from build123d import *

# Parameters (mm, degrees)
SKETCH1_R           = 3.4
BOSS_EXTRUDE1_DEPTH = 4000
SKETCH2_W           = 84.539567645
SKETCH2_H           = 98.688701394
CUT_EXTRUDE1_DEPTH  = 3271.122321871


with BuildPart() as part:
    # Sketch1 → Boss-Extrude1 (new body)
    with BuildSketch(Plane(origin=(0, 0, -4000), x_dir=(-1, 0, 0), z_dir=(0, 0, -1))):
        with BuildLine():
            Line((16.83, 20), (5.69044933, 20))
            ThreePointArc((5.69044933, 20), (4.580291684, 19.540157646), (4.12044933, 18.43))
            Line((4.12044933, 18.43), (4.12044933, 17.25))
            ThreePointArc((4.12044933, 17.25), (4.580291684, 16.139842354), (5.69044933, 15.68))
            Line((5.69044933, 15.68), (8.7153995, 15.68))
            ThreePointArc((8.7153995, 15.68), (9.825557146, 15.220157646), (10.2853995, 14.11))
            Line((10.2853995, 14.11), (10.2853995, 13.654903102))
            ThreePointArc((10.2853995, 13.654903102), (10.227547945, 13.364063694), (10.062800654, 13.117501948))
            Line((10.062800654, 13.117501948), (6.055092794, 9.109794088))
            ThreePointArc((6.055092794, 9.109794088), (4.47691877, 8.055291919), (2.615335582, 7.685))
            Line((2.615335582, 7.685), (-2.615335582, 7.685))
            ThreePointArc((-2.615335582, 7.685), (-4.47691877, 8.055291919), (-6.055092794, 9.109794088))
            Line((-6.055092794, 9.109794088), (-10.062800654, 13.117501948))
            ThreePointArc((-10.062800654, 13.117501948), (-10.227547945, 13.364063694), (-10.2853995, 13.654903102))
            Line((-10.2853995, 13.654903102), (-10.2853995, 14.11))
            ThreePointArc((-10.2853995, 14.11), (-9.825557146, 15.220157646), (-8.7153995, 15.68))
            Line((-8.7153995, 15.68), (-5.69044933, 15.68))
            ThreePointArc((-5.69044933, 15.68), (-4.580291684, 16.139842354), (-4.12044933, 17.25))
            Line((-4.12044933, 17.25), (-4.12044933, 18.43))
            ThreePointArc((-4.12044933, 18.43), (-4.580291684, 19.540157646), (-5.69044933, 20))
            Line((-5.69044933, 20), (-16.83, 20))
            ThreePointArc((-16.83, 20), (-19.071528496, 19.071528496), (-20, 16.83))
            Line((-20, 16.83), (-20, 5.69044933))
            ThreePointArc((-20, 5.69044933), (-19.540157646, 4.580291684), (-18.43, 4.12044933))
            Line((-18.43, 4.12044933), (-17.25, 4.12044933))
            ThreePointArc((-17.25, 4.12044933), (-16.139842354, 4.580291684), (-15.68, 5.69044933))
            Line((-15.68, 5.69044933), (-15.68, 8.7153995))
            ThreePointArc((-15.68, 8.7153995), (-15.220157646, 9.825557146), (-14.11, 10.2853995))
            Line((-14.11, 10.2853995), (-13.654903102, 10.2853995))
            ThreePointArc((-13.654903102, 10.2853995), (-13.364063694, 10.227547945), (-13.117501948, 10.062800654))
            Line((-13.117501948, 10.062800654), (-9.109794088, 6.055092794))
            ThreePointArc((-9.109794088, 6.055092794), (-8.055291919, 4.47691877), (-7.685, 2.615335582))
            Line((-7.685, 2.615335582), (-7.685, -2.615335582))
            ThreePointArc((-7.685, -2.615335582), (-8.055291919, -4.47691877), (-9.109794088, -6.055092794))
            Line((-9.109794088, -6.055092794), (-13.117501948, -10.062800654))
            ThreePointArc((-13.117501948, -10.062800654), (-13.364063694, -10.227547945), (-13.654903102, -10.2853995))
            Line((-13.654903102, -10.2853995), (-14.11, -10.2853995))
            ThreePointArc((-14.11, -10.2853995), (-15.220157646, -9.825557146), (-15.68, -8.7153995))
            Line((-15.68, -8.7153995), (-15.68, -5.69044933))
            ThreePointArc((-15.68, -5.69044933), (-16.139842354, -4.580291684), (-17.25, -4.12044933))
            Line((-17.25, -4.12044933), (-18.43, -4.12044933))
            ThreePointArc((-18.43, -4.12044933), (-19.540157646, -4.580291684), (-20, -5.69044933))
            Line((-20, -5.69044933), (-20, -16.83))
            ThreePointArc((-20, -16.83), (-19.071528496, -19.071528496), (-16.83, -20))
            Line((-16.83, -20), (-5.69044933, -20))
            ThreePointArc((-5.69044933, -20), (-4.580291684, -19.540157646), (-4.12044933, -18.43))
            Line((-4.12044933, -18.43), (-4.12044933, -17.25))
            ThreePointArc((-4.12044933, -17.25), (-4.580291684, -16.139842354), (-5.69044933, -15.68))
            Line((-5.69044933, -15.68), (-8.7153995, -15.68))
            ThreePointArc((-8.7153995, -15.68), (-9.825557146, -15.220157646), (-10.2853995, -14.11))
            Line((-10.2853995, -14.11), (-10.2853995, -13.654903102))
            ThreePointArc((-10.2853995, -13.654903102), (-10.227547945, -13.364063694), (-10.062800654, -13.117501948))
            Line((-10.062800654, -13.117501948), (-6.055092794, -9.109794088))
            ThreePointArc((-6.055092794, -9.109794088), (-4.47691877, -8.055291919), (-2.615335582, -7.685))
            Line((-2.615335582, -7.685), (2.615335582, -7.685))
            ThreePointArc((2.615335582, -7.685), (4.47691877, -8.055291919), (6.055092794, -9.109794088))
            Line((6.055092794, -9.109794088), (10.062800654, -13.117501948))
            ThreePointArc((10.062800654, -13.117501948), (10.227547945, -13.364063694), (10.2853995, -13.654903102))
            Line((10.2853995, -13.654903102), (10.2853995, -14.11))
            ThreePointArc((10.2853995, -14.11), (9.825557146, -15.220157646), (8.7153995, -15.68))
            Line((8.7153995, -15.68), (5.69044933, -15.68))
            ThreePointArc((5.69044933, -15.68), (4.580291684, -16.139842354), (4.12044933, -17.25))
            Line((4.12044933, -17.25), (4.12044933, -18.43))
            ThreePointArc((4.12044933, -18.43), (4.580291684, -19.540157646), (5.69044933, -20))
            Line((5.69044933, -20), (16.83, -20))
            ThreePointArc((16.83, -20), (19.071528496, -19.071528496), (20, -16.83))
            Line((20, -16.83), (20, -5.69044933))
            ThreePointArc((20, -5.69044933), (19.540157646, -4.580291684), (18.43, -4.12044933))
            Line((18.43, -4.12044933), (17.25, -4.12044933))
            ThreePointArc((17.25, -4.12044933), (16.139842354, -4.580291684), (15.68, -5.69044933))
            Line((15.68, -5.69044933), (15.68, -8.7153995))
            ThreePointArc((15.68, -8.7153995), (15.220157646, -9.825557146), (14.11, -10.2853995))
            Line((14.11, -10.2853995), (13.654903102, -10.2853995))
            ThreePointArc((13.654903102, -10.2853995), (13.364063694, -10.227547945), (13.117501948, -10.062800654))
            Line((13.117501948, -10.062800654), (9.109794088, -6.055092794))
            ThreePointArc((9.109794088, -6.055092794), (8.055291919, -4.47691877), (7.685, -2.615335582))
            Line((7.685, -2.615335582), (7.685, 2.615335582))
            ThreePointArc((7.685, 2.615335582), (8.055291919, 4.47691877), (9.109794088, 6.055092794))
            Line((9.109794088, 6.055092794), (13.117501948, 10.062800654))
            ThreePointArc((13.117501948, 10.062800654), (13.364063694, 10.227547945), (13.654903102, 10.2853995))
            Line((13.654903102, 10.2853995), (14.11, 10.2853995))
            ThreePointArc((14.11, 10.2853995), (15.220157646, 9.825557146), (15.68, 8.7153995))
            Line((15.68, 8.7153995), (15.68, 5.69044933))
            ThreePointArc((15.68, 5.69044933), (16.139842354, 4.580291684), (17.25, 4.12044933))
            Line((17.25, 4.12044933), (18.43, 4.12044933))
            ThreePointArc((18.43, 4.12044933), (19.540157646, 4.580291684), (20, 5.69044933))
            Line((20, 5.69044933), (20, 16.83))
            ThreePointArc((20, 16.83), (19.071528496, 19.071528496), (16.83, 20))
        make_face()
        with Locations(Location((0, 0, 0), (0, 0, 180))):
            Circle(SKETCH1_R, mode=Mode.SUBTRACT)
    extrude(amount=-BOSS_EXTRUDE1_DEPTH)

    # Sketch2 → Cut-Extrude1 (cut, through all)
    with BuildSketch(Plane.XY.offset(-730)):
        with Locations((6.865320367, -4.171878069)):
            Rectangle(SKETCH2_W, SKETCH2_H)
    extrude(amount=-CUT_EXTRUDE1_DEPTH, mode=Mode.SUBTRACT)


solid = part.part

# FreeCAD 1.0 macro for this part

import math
import FreeCAD as App
import Part
import Sketcher
from FreeCAD import Vector
Q = App.Units.Quantity

doc = App.newDocument("Part")
body = doc.addObject("PartDesign::Body", "Body")

# Sketch on XY plane
sketch1 = body.newObject("Sketcher::SketchObject", "Sketch")
sketch1.AttachmentSupport = (doc.getObject("XY_Plane"), [""])
sketch1.MapMode = "FlatFace"
sketch1.AttachmentOffset = App.Placement(Vector(0, 0, -4000), App.Rotation())
sketch1.addGeometry([
    Part.LineSegment(Vector(-16.83, 20, 0), Vector(-5.69, 20, 0)),  # 0
    Part.ArcOfCircle(Part.Circle(Vector(-5.69, 18.43, 0), Vector(0, 0, 1), 1.57), math.radians(0), math.radians(90)),  # 1
    Part.LineSegment(Vector(-4.12, 18.43, 0), Vector(-4.12, 17.25, 0)),  # 2
    Part.ArcOfCircle(Part.Circle(Vector(-5.69, 17.25, 0), Vector(0, 0, 1), 1.57), math.radians(-90), math.radians(0)),  # 3
    Part.LineSegment(Vector(-5.69, 15.68, 0), Vector(-8.72, 15.68, 0)),  # 4
    Part.ArcOfCircle(Part.Circle(Vector(-8.72, 14.11, 0), Vector(0, 0, 1), 1.57), math.radians(90), math.radians(180)),  # 5
    Part.LineSegment(Vector(-10.29, 14.11, 0), Vector(-10.29, 13.65, 0)),  # 6
    Part.ArcOfCircle(Part.Circle(Vector(-9.53, 13.65, 0), Vector(0, 0, 1), 0.76), math.radians(180), math.radians(225)),  # 7
    Part.LineSegment(Vector(-10.06, 13.12, 0), Vector(-6.06, 9.11, 0)),  # 8
    Part.ArcOfCircle(Part.Circle(Vector(-2.62, 12.55, 0), Vector(0, 0, 1), 4.86), math.radians(-135), math.radians(-90)),  # 9
    Part.LineSegment(Vector(-2.62, 7.68, 0), Vector(2.62, 7.68, 0)),  # 10
    Part.ArcOfCircle(Part.Circle(Vector(2.62, 12.55, 0), Vector(0, 0, 1), 4.86), math.radians(-90), math.radians(-45)),  # 11
    Part.LineSegment(Vector(6.06, 9.11, 0), Vector(10.06, 13.12, 0)),  # 12
    Part.ArcOfCircle(Part.Circle(Vector(9.53, 13.65, 0), Vector(0, 0, 1), 0.76), math.radians(-45), math.radians(0)),  # 13
    Part.LineSegment(Vector(10.29, 13.65, 0), Vector(10.29, 14.11, 0)),  # 14
    Part.ArcOfCircle(Part.Circle(Vector(8.72, 14.11, 0), Vector(0, 0, 1), 1.57), math.radians(0), math.radians(90)),  # 15
    Part.LineSegment(Vector(8.72, 15.68, 0), Vector(5.69, 15.68, 0)),  # 16
    Part.ArcOfCircle(Part.Circle(Vector(5.69, 17.25, 0), Vector(0, 0, 1), 1.57), math.radians(-180), math.radians(-90)),  # 17
    Part.LineSegment(Vector(4.12, 17.25, 0), Vector(4.12, 18.43, 0)),  # 18
    Part.ArcOfCircle(Part.Circle(Vector(5.69, 18.43, 0), Vector(0, 0, 1), 1.57), math.radians(90), math.radians(180)),  # 19
    Part.LineSegment(Vector(5.69, 20, 0), Vector(16.83, 20, 0)),  # 20
    Part.ArcOfCircle(Part.Circle(Vector(16.83, 16.83, 0), Vector(0, 0, 1), 3.17), math.radians(0), math.radians(90)),  # 21
    Part.LineSegment(Vector(20, 16.83, 0), Vector(20, 5.69, 0)),  # 22
    Part.ArcOfCircle(Part.Circle(Vector(18.43, 5.69, 0), Vector(0, 0, 1), 1.57), math.radians(-90), math.radians(0)),  # 23
    Part.LineSegment(Vector(18.43, 4.12, 0), Vector(17.25, 4.12, 0)),  # 24
    Part.ArcOfCircle(Part.Circle(Vector(17.25, 5.69, 0), Vector(0, 0, 1), 1.57), math.radians(-180), math.radians(-90)),  # 25
    Part.LineSegment(Vector(15.68, 5.69, 0), Vector(15.68, 8.72, 0)),  # 26
    Part.ArcOfCircle(Part.Circle(Vector(14.11, 8.72, 0), Vector(0, 0, 1), 1.57), math.radians(0), math.radians(90)),  # 27
    Part.LineSegment(Vector(14.11, 10.29, 0), Vector(13.65, 10.29, 0)),  # 28
    Part.ArcOfCircle(Part.Circle(Vector(13.65, 9.53, 0), Vector(0, 0, 1), 0.76), math.radians(90), math.radians(135)),  # 29
    Part.LineSegment(Vector(13.12, 10.06, 0), Vector(9.11, 6.06, 0)),  # 30
    Part.ArcOfCircle(Part.Circle(Vector(12.55, 2.62, 0), Vector(0, 0, 1), 4.86), math.radians(135), math.radians(180)),  # 31
    Part.LineSegment(Vector(7.68, 2.62, 0), Vector(7.68, -2.62, 0)),  # 32
    Part.ArcOfCircle(Part.Circle(Vector(12.55, -2.62, 0), Vector(0, 0, 1), 4.86), math.radians(-180), math.radians(-135)),  # 33
    Part.LineSegment(Vector(9.11, -6.06, 0), Vector(13.12, -10.06, 0)),  # 34
    Part.ArcOfCircle(Part.Circle(Vector(13.65, -9.53, 0), Vector(0, 0, 1), 0.76), math.radians(-135), math.radians(-90)),  # 35
    Part.LineSegment(Vector(13.65, -10.29, 0), Vector(14.11, -10.29, 0)),  # 36
    Part.ArcOfCircle(Part.Circle(Vector(14.11, -8.72, 0), Vector(0, 0, 1), 1.57), math.radians(-90), math.radians(0)),  # 37
    Part.LineSegment(Vector(15.68, -8.72, 0), Vector(15.68, -5.69, 0)),  # 38
    Part.ArcOfCircle(Part.Circle(Vector(17.25, -5.69, 0), Vector(0, 0, 1), 1.57), math.radians(90), math.radians(180)),  # 39
    Part.LineSegment(Vector(17.25, -4.12, 0), Vector(18.43, -4.12, 0)),  # 40
    Part.ArcOfCircle(Part.Circle(Vector(18.43, -5.69, 0), Vector(0, 0, 1), 1.57), math.radians(0), math.radians(90)),  # 41
    Part.LineSegment(Vector(20, -5.69, 0), Vector(20, -16.83, 0)),  # 42
    Part.ArcOfCircle(Part.Circle(Vector(16.83, -16.83, 0), Vector(0, 0, 1), 3.17), math.radians(-90), math.radians(0)),  # 43
    Part.LineSegment(Vector(16.83, -20, 0), Vector(5.69, -20, 0)),  # 44
    Part.ArcOfCircle(Part.Circle(Vector(5.69, -18.43, 0), Vector(0, 0, 1), 1.57), math.radians(-180), math.radians(-90)),  # 45
    Part.LineSegment(Vector(4.12, -18.43, 0), Vector(4.12, -17.25, 0)),  # 46
    Part.ArcOfCircle(Part.Circle(Vector(5.69, -17.25, 0), Vector(0, 0, 1), 1.57), math.radians(90), math.radians(180)),  # 47
    Part.LineSegment(Vector(5.69, -15.68, 0), Vector(8.72, -15.68, 0)),  # 48
    Part.ArcOfCircle(Part.Circle(Vector(8.72, -14.11, 0), Vector(0, 0, 1), 1.57), math.radians(-90), math.radians(0)),  # 49
    Part.LineSegment(Vector(10.29, -14.11, 0), Vector(10.29, -13.65, 0)),  # 50
    Part.ArcOfCircle(Part.Circle(Vector(9.53, -13.65, 0), Vector(0, 0, 1), 0.76), math.radians(0), math.radians(45)),  # 51
    Part.LineSegment(Vector(10.06, -13.12, 0), Vector(6.06, -9.11, 0)),  # 52
    Part.ArcOfCircle(Part.Circle(Vector(2.62, -12.55, 0), Vector(0, 0, 1), 4.86), math.radians(45), math.radians(90)),  # 53
    Part.LineSegment(Vector(2.62, -7.68, 0), Vector(-2.62, -7.68, 0)),  # 54
    Part.ArcOfCircle(Part.Circle(Vector(-2.62, -12.55, 0), Vector(0, 0, 1), 4.86), math.radians(90), math.radians(135)),  # 55
    Part.LineSegment(Vector(-6.06, -9.11, 0), Vector(-10.06, -13.12, 0)),  # 56
    Part.ArcOfCircle(Part.Circle(Vector(-9.53, -13.65, 0), Vector(0, 0, 1), 0.76), math.radians(135), math.radians(180)),  # 57
    Part.LineSegment(Vector(-10.29, -13.65, 0), Vector(-10.29, -14.11, 0)),  # 58
    Part.ArcOfCircle(Part.Circle(Vector(-8.72, -14.11, 0), Vector(0, 0, 1), 1.57), math.radians(-180), math.radians(-90)),  # 59
    Part.LineSegment(Vector(-8.72, -15.68, 0), Vector(-5.69, -15.68, 0)),  # 60
    Part.ArcOfCircle(Part.Circle(Vector(-5.69, -17.25, 0), Vector(0, 0, 1), 1.57), math.radians(0), math.radians(90)),  # 61
    Part.LineSegment(Vector(-4.12, -17.25, 0), Vector(-4.12, -18.43, 0)),  # 62
    Part.ArcOfCircle(Part.Circle(Vector(-5.69, -18.43, 0), Vector(0, 0, 1), 1.57), math.radians(-90), math.radians(0)),  # 63
    Part.LineSegment(Vector(-5.69, -20, 0), Vector(-16.83, -20, 0)),  # 64
    Part.ArcOfCircle(Part.Circle(Vector(-16.83, -16.83, 0), Vector(0, 0, 1), 3.17), math.radians(-180), math.radians(-90)),  # 65
    Part.LineSegment(Vector(-20, -16.83, 0), Vector(-20, -5.69, 0)),  # 66
    Part.ArcOfCircle(Part.Circle(Vector(-18.43, -5.69, 0), Vector(0, 0, 1), 1.57), math.radians(90), math.radians(180)),  # 67
    Part.LineSegment(Vector(-18.43, -4.12, 0), Vector(-17.25, -4.12, 0)),  # 68
    Part.ArcOfCircle(Part.Circle(Vector(-17.25, -5.69, 0), Vector(0, 0, 1), 1.57), math.radians(0), math.radians(90)),  # 69
    Part.LineSegment(Vector(-15.68, -5.69, 0), Vector(-15.68, -8.72, 0)),  # 70
    Part.ArcOfCircle(Part.Circle(Vector(-14.11, -8.72, 0), Vector(0, 0, 1), 1.57), math.radians(-180), math.radians(-90)),  # 71
    Part.LineSegment(Vector(-14.11, -10.29, 0), Vector(-13.65, -10.29, 0)),  # 72
    Part.ArcOfCircle(Part.Circle(Vector(-13.65, -9.53, 0), Vector(0, 0, 1), 0.76), math.radians(-90), math.radians(-45)),  # 73
    Part.LineSegment(Vector(-13.12, -10.06, 0), Vector(-9.11, -6.06, 0)),  # 74
    Part.ArcOfCircle(Part.Circle(Vector(-12.55, -2.62, 0), Vector(0, 0, 1), 4.86), math.radians(-45), math.radians(0)),  # 75
    Part.LineSegment(Vector(-7.68, -2.62, 0), Vector(-7.68, 2.62, 0)),  # 76
    Part.ArcOfCircle(Part.Circle(Vector(-12.55, 2.62, 0), Vector(0, 0, 1), 4.86), math.radians(0), math.radians(45)),  # 77
    Part.LineSegment(Vector(-9.11, 6.06, 0), Vector(-13.12, 10.06, 0)),  # 78
    Part.ArcOfCircle(Part.Circle(Vector(-13.65, 9.53, 0), Vector(0, 0, 1), 0.76), math.radians(45), math.radians(90)),  # 79
    Part.LineSegment(Vector(-13.65, 10.29, 0), Vector(-14.11, 10.29, 0)),  # 80
    Part.ArcOfCircle(Part.Circle(Vector(-14.11, 8.72, 0), Vector(0, 0, 1), 1.57), math.radians(90), math.radians(180)),  # 81
    Part.LineSegment(Vector(-15.68, 8.72, 0), Vector(-15.68, 5.69, 0)),  # 82
    Part.ArcOfCircle(Part.Circle(Vector(-17.25, 5.69, 0), Vector(0, 0, 1), 1.57), math.radians(-90), math.radians(0)),  # 83
    Part.LineSegment(Vector(-17.25, 4.12, 0), Vector(-18.43, 4.12, 0)),  # 84
    Part.ArcOfCircle(Part.Circle(Vector(-18.43, 5.69, 0), Vector(0, 0, 1), 1.57), math.radians(-180), math.radians(-90)),  # 85
    Part.LineSegment(Vector(-20, 5.69, 0), Vector(-20, 16.83, 0)),  # 86
    Part.ArcOfCircle(Part.Circle(Vector(-16.83, 16.83, 0), Vector(0, 0, 1), 3.17), math.radians(90), math.radians(180)),  # 87
    Part.Circle(Vector(0, 0, 0), Vector(0, 0, 1), 3.4),  # 88
], False)
sketch1.addConstraint([
    Sketcher.Constraint("Tangent", 0, 2, 1, 2),
    Sketcher.Constraint("Tangent", 1, 1, 2, 1),
    Sketcher.Constraint("Tangent", 2, 2, 3, 2),
    Sketcher.Constraint("Tangent", 3, 1, 4, 1),
    Sketcher.Constraint("Tangent", 4, 2, 5, 1),
    Sketcher.Constraint("Tangent", 5, 2, 6, 1),
    Sketcher.Constraint("Tangent", 6, 2, 7, 1),
    Sketcher.Constraint("Tangent", 7, 2, 8, 1),
    Sketcher.Constraint("Tangent", 8, 2, 9, 1),
    Sketcher.Constraint("Tangent", 9, 2, 10, 1),
    Sketcher.Constraint("Tangent", 10, 2, 11, 1),
    Sketcher.Constraint("Tangent", 11, 2, 12, 1),
    Sketcher.Constraint("Tangent", 12, 2, 13, 1),
    Sketcher.Constraint("Tangent", 13, 2, 14, 1),
    Sketcher.Constraint("Tangent", 14, 2, 15, 1),
    Sketcher.Constraint("Tangent", 15, 2, 16, 1),
    Sketcher.Constraint("Tangent", 16, 2, 17, 2),
    Sketcher.Constraint("Tangent", 17, 1, 18, 1),
    Sketcher.Constraint("Tangent", 18, 2, 19, 2),
    Sketcher.Constraint("Tangent", 19, 1, 20, 1),
    Sketcher.Constraint("Tangent", 20, 2, 21, 2),
    Sketcher.Constraint("Tangent", 21, 1, 22, 1),
    Sketcher.Constraint("Tangent", 22, 2, 23, 2),
    Sketcher.Constraint("Tangent", 23, 1, 24, 1),
    Sketcher.Constraint("Tangent", 24, 2, 25, 2),
    Sketcher.Constraint("Tangent", 25, 1, 26, 1),
    Sketcher.Constraint("Tangent", 26, 2, 27, 1),
    Sketcher.Constraint("Tangent", 27, 2, 28, 1),
    Sketcher.Constraint("Tangent", 28, 2, 29, 1),
    Sketcher.Constraint("Tangent", 29, 2, 30, 1),
    Sketcher.Constraint("Tangent", 30, 2, 31, 1),
    Sketcher.Constraint("Tangent", 31, 2, 32, 1),
    Sketcher.Constraint("Tangent", 32, 2, 33, 1),
    Sketcher.Constraint("Tangent", 33, 2, 34, 1),
    Sketcher.Constraint("Tangent", 34, 2, 35, 1),
    Sketcher.Constraint("Tangent", 35, 2, 36, 1),
    Sketcher.Constraint("Tangent", 36, 2, 37, 1),
    Sketcher.Constraint("Tangent", 37, 2, 38, 1),
    Sketcher.Constraint("Tangent", 38, 2, 39, 2),
    Sketcher.Constraint("Tangent", 39, 1, 40, 1),
    Sketcher.Constraint("Tangent", 40, 2, 41, 2),
    Sketcher.Constraint("Tangent", 41, 1, 42, 1),
    Sketcher.Constraint("Tangent", 42, 2, 43, 2),
    Sketcher.Constraint("Tangent", 43, 1, 44, 1),
    Sketcher.Constraint("Tangent", 44, 2, 45, 2),
    Sketcher.Constraint("Tangent", 45, 1, 46, 1),
    Sketcher.Constraint("Tangent", 46, 2, 47, 2),
    Sketcher.Constraint("Tangent", 47, 1, 48, 1),
    Sketcher.Constraint("Tangent", 48, 2, 49, 1),
    Sketcher.Constraint("Tangent", 49, 2, 50, 1),
    Sketcher.Constraint("Tangent", 50, 2, 51, 1),
    Sketcher.Constraint("Tangent", 51, 2, 52, 1),
    Sketcher.Constraint("Tangent", 52, 2, 53, 1),
    Sketcher.Constraint("Tangent", 53, 2, 54, 1),
    Sketcher.Constraint("Tangent", 54, 2, 55, 1),
    Sketcher.Constraint("Tangent", 55, 2, 56, 1),
    Sketcher.Constraint("Tangent", 56, 2, 57, 1),
    Sketcher.Constraint("Tangent", 57, 2, 58, 1),
    Sketcher.Constraint("Tangent", 58, 2, 59, 1),
    Sketcher.Constraint("Tangent", 59, 2, 60, 1),
    Sketcher.Constraint("Tangent", 60, 2, 61, 2),
    Sketcher.Constraint("Tangent", 61, 1, 62, 1),
    Sketcher.Constraint("Tangent", 62, 2, 63, 2),
    Sketcher.Constraint("Tangent", 63, 1, 64, 1),
    Sketcher.Constraint("Tangent", 64, 2, 65, 2),
    Sketcher.Constraint("Tangent", 65, 1, 66, 1),
    Sketcher.Constraint("Tangent", 66, 2, 67, 2),
    Sketcher.Constraint("Tangent", 67, 1, 68, 1),
    Sketcher.Constraint("Tangent", 68, 2, 69, 2),
    Sketcher.Constraint("Tangent", 69, 1, 70, 1),
    Sketcher.Constraint("Tangent", 70, 2, 71, 1),
    Sketcher.Constraint("Tangent", 71, 2, 72, 1),
    Sketcher.Constraint("Tangent", 72, 2, 73, 1),
    Sketcher.Constraint("Tangent", 73, 2, 74, 1),
    Sketcher.Constraint("Tangent", 74, 2, 75, 1),
    Sketcher.Constraint("Tangent", 75, 2, 76, 1),
    Sketcher.Constraint("Tangent", 76, 2, 77, 1),
    Sketcher.Constraint("Tangent", 77, 2, 78, 1),
    Sketcher.Constraint("Tangent", 78, 2, 79, 1),
    Sketcher.Constraint("Tangent", 79, 2, 80, 1),
    Sketcher.Constraint("Tangent", 80, 2, 81, 1),
    Sketcher.Constraint("Tangent", 81, 2, 82, 1),
    Sketcher.Constraint("Tangent", 82, 2, 83, 2),
    Sketcher.Constraint("Tangent", 83, 1, 84, 1),
    Sketcher.Constraint("Tangent", 84, 2, 85, 2),
    Sketcher.Constraint("Tangent", 85, 1, 86, 1),
    Sketcher.Constraint("Tangent", 86, 2, 87, 2),
    Sketcher.Constraint("Tangent", 87, 1, 0, 1),
    Sketcher.Constraint("Horizontal", 0),
    Sketcher.Constraint("Vertical", 2),
    Sketcher.Constraint("Horizontal", 4),
    Sketcher.Constraint("Vertical", 6),
    Sketcher.Constraint("Horizontal", 10),
    Sketcher.Constraint("Vertical", 14),
    Sketcher.Constraint("Horizontal", 16),
    Sketcher.Constraint("Vertical", 18),
    Sketcher.Constraint("Horizontal", 20),
    Sketcher.Constraint("Vertical", 22),
    Sketcher.Constraint("Horizontal", 24),
    Sketcher.Constraint("Vertical", 26),
    Sketcher.Constraint("Horizontal", 28),
    Sketcher.Constraint("Vertical", 32),
    Sketcher.Constraint("Horizontal", 36),
    Sketcher.Constraint("Vertical", 38),
    Sketcher.Constraint("Horizontal", 40),
    Sketcher.Constraint("Vertical", 42),
    Sketcher.Constraint("Horizontal", 44),
    Sketcher.Constraint("Vertical", 46),
    Sketcher.Constraint("Horizontal", 48),
    Sketcher.Constraint("Vertical", 50),
    Sketcher.Constraint("Horizontal", 54),
    Sketcher.Constraint("Vertical", 58),
    Sketcher.Constraint("Horizontal", 60),
    Sketcher.Constraint("Vertical", 62),
    Sketcher.Constraint("Horizontal", 64),
    Sketcher.Constraint("Vertical", 66),
    Sketcher.Constraint("Horizontal", 68),
    Sketcher.Constraint("Vertical", 70),
    Sketcher.Constraint("Horizontal", 72),
    Sketcher.Constraint("Vertical", 76),
    Sketcher.Constraint("Horizontal", 80),
    Sketcher.Constraint("Vertical", 82),
    Sketcher.Constraint("Horizontal", 84),
    Sketcher.Constraint("Vertical", 86),
    Sketcher.Constraint("Coincident", 88, 3, -1, 1),
    Sketcher.Constraint("Equal", 1, 3),
    Sketcher.Constraint("Equal", 3, 5),
    Sketcher.Constraint("Equal", 9, 11),
    Sketcher.Constraint("Equal", 7, 13),
    Sketcher.Constraint("Equal", 5, 15),
    Sketcher.Constraint("Equal", 15, 17),
    Sketcher.Constraint("Equal", 17, 19),
    Sketcher.Constraint("Equal", 19, 23),
    Sketcher.Constraint("Equal", 23, 25),
    Sketcher.Constraint("Equal", 25, 27),
    Sketcher.Constraint("Equal", 13, 29),
    Sketcher.Constraint("Equal", 11, 31),
    Sketcher.Constraint("Equal", 31, 33),
    Sketcher.Constraint("Equal", 29, 35),
    Sketcher.Constraint("Equal", 27, 37),
    Sketcher.Constraint("Equal", 37, 39),
    Sketcher.Constraint("Equal", 39, 41),
    Sketcher.Constraint("Equal", 21, 43),
    Sketcher.Constraint("Equal", 41, 45),
    Sketcher.Constraint("Equal", 45, 47),
    Sketcher.Constraint("Equal", 47, 49),
    Sketcher.Constraint("Equal", 35, 51),
    Sketcher.Constraint("Equal", 33, 53),
    Sketcher.Constraint("Equal", 53, 55),
    Sketcher.Constraint("Equal", 51, 57),
    Sketcher.Constraint("Equal", 49, 59),
    Sketcher.Constraint("Equal", 59, 61),
    Sketcher.Constraint("Equal", 61, 63),
    Sketcher.Constraint("Equal", 43, 65),
    Sketcher.Constraint("Equal", 63, 67),
    Sketcher.Constraint("Equal", 67, 69),
    Sketcher.Constraint("Equal", 69, 71),
    Sketcher.Constraint("Equal", 57, 73),
    Sketcher.Constraint("Equal", 55, 75),
    Sketcher.Constraint("Equal", 75, 77),
    Sketcher.Constraint("Equal", 73, 79),
    Sketcher.Constraint("Equal", 71, 81),
    Sketcher.Constraint("Equal", 81, 83),
    Sketcher.Constraint("Equal", 83, 85),
    Sketcher.Constraint("Equal", 65, 87),
    Sketcher.Constraint("Symmetric", 1, 3, 45, 3, -1, 1),
    Sketcher.Constraint("Symmetric", 5, 3, 49, 3, -1, 1),
    Sketcher.Constraint("Symmetric", 9, 3, 53, 3, -1, 1),
    Sketcher.Constraint("Symmetric", 13, 3, 57, 3, -1, 1),
    Sketcher.Constraint("Symmetric", 17, 3, 61, 3, -1, 1),
    Sketcher.Constraint("Symmetric", 21, 3, 65, 3, -1, 1),
    Sketcher.Constraint("Symmetric", 25, 3, 69, 3, -1, 1),
    Sketcher.Constraint("Symmetric", 29, 3, 73, 3, -1, 1),
    Sketcher.Constraint("Symmetric", 31, 3, 75, 3, -1, 1),
    Sketcher.Constraint("Symmetric", 35, 3, 79, 3, -1, 1),
    Sketcher.Constraint("Symmetric", 39, 3, 83, 3, -1, 1),
    Sketcher.Constraint("Symmetric", 7, 3, 13, 3, -2),
    Sketcher.Constraint("Symmetric", 3, 3, 17, 3, -2),
    Sketcher.Constraint("Symmetric", 43, 3, 65, 3, -2),
    Sketcher.Constraint("Symmetric", 39, 3, 69, 3, -2),
    Sketcher.Constraint("Symmetric", 35, 3, 73, 3, -2),
    Sketcher.Constraint("Symmetric", 52, 2, 55, 2, -2),
    Sketcher.Constraint("Perpendicular", 8, 12),
    Sketcher.Constraint("Parallel", 12, 30),
    Sketcher.Constraint("Perpendicular", 30, 34),
    Sketcher.Constraint("Perpendicular", 52, 56),
    Sketcher.Constraint("Perpendicular", 74, 78),
    Sketcher.Constraint("Vertical", 67, 3, 85, 3),
    Sketcher.Constraint("Equal", 84, 2),
    Sketcher.Constraint("Equal", 80, 6),
    Sketcher.Constraint("Equal", 64, 22),
    Sketcher.Constraint("Equal", 60, 26),
    Sketcher.Constraint("Equal", 54, 32),
    Sketcher.Constraint("Equal", 12, 30),
    Sketcher.Constraint("Diameter", 88, Q("6.8 mm")),
    Sketcher.Constraint("Radius", 1, Q("1.57 mm")),
    Sketcher.Constraint("Radius", 7, Q("0.76 mm")),
    Sketcher.Constraint("Radius", 21, Q("3.17 mm")),
    Sketcher.Constraint("DistanceY", -1, 1, 0, 2, Q("20 mm")),
    Sketcher.Constraint("DistanceX", 24, 2, 24, 1, Q("1.18 mm")),
    Sketcher.Constraint("Radius", 9, Q("4.864551 mm")),
    Sketcher.Constraint("DistanceY", -1, 1, 9, 2, Q("7.685 mm")),
    Sketcher.Constraint("DistanceX", 0, 1, 0, 2, Q("11.139551 mm")),
    Sketcher.Constraint("DistanceX", 4, 2, 4, 1, Q("3.02495 mm")),
    Sketcher.Constraint("DistanceX", 10, 1, 10, 2, Q("5.230671 mm")),
])
pad1 = body.newObject("PartDesign::Pad", "Pad")
pad1.Profile = sketch1
pad1.Length = 4000

# Sketch on XY plane
sketch2 = body.newObject("Sketcher::SketchObject", "Sketch001")
sketch2.AttachmentSupport = (doc.getObject("XY_Plane"), [""])
sketch2.MapMode = "FlatFace"
sketch2.AttachmentOffset = App.Placement(Vector(0, 0, -730), App.Rotation())
sketch2.addGeometry([
    Part.LineSegment(Vector(-35, 45, 0), Vector(-35, -54, 0)),
    Part.LineSegment(Vector(-35, -54, 0), Vector(49, -54, 0)),
    Part.LineSegment(Vector(49, -54, 0), Vector(49, 45, 0)),
    Part.LineSegment(Vector(49, 45, 0), Vector(-35, 45, 0)),
], False)
sketch2.addConstraint([
    Sketcher.Constraint("Coincident", 0, 2, 1, 1),
    Sketcher.Constraint("Coincident", 1, 2, 2, 1),
    Sketcher.Constraint("Coincident", 2, 2, 3, 1),
    Sketcher.Constraint("Coincident", 3, 2, 0, 1),
    Sketcher.Constraint("Vertical", 0),
    Sketcher.Constraint("Horizontal", 1),
    Sketcher.Constraint("Vertical", 2),
    Sketcher.Constraint("Horizontal", 3),
    Sketcher.Constraint("DistanceY", 0, 2, 0, 1, Q("98.688701 mm")),
    Sketcher.Constraint("DistanceX", 1, 1, 1, 2, Q("84.539568 mm")),
    Sketcher.Constraint("DistanceY", 0, 2, -1, 1, Q("53.516229 mm")),
    Sketcher.Constraint("DistanceX", 0, 2, -1, 1, Q("35.404463 mm")),
])
pocket1 = body.newObject("PartDesign::Pocket", "Pocket")
pocket1.Profile = sketch2
pocket1.Type = "ThroughAll"

doc.recompute()
